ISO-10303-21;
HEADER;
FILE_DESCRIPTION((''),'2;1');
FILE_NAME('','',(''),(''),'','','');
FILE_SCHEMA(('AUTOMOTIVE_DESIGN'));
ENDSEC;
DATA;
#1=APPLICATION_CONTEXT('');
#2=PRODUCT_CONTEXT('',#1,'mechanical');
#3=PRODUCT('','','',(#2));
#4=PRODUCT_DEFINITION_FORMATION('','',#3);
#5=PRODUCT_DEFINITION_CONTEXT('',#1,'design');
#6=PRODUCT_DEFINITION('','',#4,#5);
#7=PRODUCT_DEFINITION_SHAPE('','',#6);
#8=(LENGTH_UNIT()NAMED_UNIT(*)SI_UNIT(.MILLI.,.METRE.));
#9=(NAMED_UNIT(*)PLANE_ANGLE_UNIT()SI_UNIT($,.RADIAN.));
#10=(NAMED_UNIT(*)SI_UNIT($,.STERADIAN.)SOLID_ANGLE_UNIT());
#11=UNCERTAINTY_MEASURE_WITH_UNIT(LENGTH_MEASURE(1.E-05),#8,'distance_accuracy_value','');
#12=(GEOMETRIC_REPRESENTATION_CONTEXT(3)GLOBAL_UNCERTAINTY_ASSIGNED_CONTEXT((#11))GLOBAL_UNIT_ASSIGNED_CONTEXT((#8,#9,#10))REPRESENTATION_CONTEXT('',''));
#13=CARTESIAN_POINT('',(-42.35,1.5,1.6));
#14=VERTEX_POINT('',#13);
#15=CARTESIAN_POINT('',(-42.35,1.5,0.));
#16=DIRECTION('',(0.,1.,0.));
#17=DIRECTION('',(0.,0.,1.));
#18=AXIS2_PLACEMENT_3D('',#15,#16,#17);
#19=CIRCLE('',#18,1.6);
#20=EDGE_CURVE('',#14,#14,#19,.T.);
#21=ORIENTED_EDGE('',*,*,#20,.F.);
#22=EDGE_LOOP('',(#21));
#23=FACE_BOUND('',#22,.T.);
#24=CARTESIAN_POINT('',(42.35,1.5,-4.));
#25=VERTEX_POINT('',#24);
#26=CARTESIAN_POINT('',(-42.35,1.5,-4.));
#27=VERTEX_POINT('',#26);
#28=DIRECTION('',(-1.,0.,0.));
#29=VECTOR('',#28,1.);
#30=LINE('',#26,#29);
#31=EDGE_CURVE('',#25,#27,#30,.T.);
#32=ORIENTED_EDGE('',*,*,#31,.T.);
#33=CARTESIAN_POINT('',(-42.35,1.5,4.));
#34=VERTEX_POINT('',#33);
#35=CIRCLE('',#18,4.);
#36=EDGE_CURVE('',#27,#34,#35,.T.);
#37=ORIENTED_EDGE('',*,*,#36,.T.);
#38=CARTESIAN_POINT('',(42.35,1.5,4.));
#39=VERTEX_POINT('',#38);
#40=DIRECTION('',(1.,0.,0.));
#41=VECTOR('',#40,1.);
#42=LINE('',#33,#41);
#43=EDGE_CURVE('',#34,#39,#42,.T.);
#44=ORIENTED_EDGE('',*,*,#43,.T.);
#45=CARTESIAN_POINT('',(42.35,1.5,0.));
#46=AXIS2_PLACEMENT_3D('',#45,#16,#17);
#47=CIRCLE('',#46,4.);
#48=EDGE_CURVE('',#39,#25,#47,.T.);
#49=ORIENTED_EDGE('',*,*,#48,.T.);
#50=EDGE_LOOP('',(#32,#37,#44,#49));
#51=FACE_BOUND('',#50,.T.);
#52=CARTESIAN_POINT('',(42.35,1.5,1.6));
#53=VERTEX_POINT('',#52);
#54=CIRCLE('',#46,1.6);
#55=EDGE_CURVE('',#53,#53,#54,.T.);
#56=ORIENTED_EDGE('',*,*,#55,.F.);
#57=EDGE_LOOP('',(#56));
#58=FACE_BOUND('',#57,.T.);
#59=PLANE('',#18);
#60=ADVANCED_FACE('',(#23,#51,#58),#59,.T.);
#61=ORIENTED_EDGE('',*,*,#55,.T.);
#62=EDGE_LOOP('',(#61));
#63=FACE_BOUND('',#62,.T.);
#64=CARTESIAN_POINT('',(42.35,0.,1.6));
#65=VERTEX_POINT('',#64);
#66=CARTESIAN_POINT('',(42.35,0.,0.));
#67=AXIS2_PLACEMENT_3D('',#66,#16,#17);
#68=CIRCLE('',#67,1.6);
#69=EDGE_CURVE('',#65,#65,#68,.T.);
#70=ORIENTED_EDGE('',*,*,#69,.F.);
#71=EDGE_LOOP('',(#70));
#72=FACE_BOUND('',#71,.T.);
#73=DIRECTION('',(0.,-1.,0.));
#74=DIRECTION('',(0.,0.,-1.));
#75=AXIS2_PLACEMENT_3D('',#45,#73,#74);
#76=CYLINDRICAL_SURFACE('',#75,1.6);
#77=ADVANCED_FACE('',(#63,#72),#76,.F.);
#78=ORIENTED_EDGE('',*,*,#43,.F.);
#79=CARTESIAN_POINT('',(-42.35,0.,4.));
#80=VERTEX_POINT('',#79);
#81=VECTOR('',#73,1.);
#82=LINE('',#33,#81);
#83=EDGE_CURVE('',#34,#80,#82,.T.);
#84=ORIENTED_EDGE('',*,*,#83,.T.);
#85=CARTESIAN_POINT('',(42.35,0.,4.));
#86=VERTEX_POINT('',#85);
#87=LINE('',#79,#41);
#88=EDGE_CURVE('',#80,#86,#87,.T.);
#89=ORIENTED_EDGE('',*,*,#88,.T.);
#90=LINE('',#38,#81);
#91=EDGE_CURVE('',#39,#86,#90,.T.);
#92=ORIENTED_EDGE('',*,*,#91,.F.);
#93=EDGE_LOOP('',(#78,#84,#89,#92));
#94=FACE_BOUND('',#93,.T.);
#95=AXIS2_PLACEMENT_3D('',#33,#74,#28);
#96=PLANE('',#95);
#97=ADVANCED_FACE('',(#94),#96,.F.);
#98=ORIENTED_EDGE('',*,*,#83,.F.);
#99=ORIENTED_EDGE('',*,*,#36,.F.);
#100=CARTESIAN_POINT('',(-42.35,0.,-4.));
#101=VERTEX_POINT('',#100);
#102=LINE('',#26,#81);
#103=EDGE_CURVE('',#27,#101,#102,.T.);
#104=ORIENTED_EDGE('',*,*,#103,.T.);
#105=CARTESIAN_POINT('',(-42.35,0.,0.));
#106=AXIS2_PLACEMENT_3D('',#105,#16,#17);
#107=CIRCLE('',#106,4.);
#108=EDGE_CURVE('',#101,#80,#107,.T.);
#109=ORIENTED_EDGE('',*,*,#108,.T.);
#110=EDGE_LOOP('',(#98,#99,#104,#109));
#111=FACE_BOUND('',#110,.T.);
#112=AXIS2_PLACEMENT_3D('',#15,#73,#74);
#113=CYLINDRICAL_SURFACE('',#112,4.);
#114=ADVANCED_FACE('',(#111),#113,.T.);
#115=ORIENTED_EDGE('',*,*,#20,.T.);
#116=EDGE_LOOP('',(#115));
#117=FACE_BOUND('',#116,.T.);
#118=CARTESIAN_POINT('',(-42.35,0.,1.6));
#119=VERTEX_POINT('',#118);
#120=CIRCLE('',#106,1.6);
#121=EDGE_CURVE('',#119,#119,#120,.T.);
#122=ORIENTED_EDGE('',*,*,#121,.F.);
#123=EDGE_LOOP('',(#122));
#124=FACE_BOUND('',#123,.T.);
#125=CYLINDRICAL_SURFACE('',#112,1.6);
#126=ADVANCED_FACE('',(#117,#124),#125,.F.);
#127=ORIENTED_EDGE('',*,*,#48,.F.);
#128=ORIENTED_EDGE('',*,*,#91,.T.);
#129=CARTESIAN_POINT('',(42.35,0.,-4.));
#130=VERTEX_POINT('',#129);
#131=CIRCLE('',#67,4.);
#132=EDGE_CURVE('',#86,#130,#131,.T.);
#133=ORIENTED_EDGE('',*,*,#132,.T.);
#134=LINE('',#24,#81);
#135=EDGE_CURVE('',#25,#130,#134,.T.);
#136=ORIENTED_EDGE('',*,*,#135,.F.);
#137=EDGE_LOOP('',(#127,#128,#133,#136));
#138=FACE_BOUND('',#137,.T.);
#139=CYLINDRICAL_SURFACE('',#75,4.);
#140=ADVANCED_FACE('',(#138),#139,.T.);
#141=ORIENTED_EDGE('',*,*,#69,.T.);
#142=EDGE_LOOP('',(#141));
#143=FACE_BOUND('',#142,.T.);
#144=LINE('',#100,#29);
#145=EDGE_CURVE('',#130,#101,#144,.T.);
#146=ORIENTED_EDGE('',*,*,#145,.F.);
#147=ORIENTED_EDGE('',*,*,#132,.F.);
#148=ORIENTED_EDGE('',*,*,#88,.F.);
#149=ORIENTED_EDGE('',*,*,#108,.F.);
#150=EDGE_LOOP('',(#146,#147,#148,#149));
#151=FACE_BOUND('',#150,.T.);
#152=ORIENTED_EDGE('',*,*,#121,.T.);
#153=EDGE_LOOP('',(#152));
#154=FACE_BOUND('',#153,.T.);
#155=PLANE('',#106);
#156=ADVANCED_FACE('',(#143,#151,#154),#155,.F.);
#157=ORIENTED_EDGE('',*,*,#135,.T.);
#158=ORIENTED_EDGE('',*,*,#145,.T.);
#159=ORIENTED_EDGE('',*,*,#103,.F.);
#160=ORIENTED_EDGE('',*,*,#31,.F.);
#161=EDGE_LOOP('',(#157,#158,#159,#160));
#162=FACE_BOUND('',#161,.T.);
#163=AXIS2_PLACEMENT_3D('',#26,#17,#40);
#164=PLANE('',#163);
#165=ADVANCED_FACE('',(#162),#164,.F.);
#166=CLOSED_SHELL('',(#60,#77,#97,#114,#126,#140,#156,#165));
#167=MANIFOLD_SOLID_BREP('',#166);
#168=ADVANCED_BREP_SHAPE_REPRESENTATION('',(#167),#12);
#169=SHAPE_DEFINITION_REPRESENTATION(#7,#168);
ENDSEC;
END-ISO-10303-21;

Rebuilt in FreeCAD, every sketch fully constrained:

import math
import FreeCAD as App
import Part
import Sketcher

V = App.Vector

doc = App.newDocument("Part")
params = doc.addObject("Spreadsheet::Sheet", "Params")
for row, (alias, value) in enumerate([
    ("sketch1_radius", "4 mm"),
    ("sketch1_diameter", "3.2 mm"),
    ("sketch1_width", "84.7 mm"),
    ("pad1_length", "1.5 mm"),
], start=1):
    params.set(f"A{row}", alias)
    params.set(f"B{row}", "=" + value)
    params.setAlias(f"B{row}", alias)

body = doc.addObject("PartDesign::Body", "Body")

sketch1 = body.newObject("Sketcher::SketchObject", "Sketch")
sketch1.AttachmentSupport = (doc.getObject("XZ_Plane"), [""])
sketch1.MapMode = "FlatFace"
sketch1.addGeometry([
    Part.LineSegment(V(42.4, -4, 0), V(-42.4, -4, 0)),
    Part.ArcOfCircle(Part.Circle(V(-42.4, 0, 0), V(0, 0, 1), 4), math.radians(90), math.radians(270)),
    Part.LineSegment(V(-42.4, 4, 0), V(42.4, 4, 0)),
    Part.ArcOfCircle(Part.Circle(V(42.4, 0, 0), V(0, 0, 1), 4), math.radians(-90), math.radians(90)),
    Part.Circle(V(42.4, 0, 0), V(0, 0, 1), 1.6),
    Part.Circle(V(-42.4, 0, 0), V(0, 0, 1), 1.6),
], False)
sketch1.addConstraint([
    Sketcher.Constraint("Tangent", 0, 2, 1, 2),
    Sketcher.Constraint("Tangent", 1, 1, 2, 1),
    Sketcher.Constraint("Tangent", 2, 2, 3, 2),
    Sketcher.Constraint("Tangent", 3, 1, 0, 1),
    Sketcher.Constraint("Horizontal", 0),
    Sketcher.Constraint("Horizontal", 2),
    Sketcher.Constraint("Coincident", 4, 3, 3, 3),
    Sketcher.Constraint("Coincident", 5, 3, 1, 3),
    Sketcher.Constraint("Equal", 4, 5),
    Sketcher.Constraint("Symmetric", 1, 3, 3, 3, -1, 1),
    Sketcher.Constraint("Radius", 1, 4.0),
    Sketcher.Constraint("Diameter", 4, 3.2),
    Sketcher.Constraint("DistanceX", 0, 2, 0, 1, 84.7),
])
sketch1.setExpression("Constraints[10]", "Params.sketch1_radius")
sketch1.setExpression("Constraints[11]", "Params.sketch1_diameter")
sketch1.setExpression("Constraints[12]", "Params.sketch1_width")
pad1 = body.newObject("PartDesign::Pad", "Pad")
pad1.Profile = sketch1
pad1.setExpression("Length", "Params.pad1_length")
pad1.Reversed = True

doc.recompute()
